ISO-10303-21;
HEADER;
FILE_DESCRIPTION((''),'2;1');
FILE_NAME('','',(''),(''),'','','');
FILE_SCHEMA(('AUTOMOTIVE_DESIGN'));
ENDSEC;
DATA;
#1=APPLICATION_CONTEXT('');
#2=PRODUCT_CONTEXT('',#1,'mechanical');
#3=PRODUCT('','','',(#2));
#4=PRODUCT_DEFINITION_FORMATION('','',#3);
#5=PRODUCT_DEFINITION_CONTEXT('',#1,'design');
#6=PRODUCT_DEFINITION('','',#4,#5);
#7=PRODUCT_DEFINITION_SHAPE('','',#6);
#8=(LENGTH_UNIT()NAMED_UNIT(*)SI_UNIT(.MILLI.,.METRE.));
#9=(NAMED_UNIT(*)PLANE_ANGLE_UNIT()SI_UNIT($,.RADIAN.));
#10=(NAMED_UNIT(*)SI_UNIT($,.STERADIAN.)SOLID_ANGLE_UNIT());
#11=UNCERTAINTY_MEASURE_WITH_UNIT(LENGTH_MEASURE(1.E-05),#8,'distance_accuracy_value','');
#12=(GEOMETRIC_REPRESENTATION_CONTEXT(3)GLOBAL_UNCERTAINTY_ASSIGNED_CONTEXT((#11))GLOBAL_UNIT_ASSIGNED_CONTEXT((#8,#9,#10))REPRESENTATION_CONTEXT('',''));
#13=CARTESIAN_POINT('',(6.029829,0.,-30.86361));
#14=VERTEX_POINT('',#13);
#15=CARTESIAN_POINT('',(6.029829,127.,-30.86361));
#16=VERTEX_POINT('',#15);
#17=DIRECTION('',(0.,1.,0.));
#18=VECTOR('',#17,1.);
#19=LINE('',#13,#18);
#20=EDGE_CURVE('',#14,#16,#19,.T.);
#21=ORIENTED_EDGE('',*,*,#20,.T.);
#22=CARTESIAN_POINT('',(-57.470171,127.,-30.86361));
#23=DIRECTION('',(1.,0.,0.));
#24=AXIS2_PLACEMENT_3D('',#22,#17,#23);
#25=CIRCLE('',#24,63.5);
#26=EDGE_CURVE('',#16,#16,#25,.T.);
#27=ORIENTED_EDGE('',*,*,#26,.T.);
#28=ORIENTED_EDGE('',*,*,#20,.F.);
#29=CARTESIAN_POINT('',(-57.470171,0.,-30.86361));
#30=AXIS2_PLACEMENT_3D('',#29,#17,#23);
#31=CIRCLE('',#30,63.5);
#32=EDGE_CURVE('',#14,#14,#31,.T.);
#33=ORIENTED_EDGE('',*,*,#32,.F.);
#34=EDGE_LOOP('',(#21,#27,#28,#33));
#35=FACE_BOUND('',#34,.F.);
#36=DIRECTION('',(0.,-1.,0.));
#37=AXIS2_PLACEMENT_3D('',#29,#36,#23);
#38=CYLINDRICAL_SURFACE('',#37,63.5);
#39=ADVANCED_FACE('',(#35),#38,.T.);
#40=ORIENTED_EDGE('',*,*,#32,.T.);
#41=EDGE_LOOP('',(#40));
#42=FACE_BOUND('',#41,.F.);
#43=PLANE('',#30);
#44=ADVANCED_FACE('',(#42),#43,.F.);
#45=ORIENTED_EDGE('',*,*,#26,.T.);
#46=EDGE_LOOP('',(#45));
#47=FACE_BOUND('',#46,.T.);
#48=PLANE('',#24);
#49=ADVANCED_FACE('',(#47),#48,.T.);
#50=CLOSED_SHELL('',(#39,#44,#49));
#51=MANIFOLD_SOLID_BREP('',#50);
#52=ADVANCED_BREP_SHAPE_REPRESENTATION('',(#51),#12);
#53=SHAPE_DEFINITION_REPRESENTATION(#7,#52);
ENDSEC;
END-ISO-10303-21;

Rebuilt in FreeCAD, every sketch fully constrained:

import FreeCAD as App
import Part
import Sketcher
from FreeCAD import Vector
Q = App.Units.Quantity

doc = App.newDocument("Part")
body = doc.addObject("PartDesign::Body", "Body")

# Sketch on XZ plane
sketch1 = doc.addObject("Sketcher::SketchObject", "Sketch")
body.addObject(sketch1)
sketch1.AttachmentSupport = (doc.XZ_Plane, [""])
sketch1.MapMode = "FlatFace"
sketch1.addGeometry(Part.Circle(Vector(-57.470171, -30.86361, 0), Vector(0, 0, 1), 63.5), False)
sketch1.addConstraint([
    Sketcher.Constraint("Diameter", 0, Q("5 in")),
    Sketcher.Constraint("DistanceX", 0, 3, -1, 1, 57.470171),
    Sketcher.Constraint("DistanceY", 0, 3, -1, 1, 30.86361),
])
pad1 = doc.addObject("PartDesign::Pad", "Pad")
body.addObject(pad1)
pad1.Profile = sketch1
pad1.Length = Q("5 in")
pad1.Reversed = True

doc.recompute()
